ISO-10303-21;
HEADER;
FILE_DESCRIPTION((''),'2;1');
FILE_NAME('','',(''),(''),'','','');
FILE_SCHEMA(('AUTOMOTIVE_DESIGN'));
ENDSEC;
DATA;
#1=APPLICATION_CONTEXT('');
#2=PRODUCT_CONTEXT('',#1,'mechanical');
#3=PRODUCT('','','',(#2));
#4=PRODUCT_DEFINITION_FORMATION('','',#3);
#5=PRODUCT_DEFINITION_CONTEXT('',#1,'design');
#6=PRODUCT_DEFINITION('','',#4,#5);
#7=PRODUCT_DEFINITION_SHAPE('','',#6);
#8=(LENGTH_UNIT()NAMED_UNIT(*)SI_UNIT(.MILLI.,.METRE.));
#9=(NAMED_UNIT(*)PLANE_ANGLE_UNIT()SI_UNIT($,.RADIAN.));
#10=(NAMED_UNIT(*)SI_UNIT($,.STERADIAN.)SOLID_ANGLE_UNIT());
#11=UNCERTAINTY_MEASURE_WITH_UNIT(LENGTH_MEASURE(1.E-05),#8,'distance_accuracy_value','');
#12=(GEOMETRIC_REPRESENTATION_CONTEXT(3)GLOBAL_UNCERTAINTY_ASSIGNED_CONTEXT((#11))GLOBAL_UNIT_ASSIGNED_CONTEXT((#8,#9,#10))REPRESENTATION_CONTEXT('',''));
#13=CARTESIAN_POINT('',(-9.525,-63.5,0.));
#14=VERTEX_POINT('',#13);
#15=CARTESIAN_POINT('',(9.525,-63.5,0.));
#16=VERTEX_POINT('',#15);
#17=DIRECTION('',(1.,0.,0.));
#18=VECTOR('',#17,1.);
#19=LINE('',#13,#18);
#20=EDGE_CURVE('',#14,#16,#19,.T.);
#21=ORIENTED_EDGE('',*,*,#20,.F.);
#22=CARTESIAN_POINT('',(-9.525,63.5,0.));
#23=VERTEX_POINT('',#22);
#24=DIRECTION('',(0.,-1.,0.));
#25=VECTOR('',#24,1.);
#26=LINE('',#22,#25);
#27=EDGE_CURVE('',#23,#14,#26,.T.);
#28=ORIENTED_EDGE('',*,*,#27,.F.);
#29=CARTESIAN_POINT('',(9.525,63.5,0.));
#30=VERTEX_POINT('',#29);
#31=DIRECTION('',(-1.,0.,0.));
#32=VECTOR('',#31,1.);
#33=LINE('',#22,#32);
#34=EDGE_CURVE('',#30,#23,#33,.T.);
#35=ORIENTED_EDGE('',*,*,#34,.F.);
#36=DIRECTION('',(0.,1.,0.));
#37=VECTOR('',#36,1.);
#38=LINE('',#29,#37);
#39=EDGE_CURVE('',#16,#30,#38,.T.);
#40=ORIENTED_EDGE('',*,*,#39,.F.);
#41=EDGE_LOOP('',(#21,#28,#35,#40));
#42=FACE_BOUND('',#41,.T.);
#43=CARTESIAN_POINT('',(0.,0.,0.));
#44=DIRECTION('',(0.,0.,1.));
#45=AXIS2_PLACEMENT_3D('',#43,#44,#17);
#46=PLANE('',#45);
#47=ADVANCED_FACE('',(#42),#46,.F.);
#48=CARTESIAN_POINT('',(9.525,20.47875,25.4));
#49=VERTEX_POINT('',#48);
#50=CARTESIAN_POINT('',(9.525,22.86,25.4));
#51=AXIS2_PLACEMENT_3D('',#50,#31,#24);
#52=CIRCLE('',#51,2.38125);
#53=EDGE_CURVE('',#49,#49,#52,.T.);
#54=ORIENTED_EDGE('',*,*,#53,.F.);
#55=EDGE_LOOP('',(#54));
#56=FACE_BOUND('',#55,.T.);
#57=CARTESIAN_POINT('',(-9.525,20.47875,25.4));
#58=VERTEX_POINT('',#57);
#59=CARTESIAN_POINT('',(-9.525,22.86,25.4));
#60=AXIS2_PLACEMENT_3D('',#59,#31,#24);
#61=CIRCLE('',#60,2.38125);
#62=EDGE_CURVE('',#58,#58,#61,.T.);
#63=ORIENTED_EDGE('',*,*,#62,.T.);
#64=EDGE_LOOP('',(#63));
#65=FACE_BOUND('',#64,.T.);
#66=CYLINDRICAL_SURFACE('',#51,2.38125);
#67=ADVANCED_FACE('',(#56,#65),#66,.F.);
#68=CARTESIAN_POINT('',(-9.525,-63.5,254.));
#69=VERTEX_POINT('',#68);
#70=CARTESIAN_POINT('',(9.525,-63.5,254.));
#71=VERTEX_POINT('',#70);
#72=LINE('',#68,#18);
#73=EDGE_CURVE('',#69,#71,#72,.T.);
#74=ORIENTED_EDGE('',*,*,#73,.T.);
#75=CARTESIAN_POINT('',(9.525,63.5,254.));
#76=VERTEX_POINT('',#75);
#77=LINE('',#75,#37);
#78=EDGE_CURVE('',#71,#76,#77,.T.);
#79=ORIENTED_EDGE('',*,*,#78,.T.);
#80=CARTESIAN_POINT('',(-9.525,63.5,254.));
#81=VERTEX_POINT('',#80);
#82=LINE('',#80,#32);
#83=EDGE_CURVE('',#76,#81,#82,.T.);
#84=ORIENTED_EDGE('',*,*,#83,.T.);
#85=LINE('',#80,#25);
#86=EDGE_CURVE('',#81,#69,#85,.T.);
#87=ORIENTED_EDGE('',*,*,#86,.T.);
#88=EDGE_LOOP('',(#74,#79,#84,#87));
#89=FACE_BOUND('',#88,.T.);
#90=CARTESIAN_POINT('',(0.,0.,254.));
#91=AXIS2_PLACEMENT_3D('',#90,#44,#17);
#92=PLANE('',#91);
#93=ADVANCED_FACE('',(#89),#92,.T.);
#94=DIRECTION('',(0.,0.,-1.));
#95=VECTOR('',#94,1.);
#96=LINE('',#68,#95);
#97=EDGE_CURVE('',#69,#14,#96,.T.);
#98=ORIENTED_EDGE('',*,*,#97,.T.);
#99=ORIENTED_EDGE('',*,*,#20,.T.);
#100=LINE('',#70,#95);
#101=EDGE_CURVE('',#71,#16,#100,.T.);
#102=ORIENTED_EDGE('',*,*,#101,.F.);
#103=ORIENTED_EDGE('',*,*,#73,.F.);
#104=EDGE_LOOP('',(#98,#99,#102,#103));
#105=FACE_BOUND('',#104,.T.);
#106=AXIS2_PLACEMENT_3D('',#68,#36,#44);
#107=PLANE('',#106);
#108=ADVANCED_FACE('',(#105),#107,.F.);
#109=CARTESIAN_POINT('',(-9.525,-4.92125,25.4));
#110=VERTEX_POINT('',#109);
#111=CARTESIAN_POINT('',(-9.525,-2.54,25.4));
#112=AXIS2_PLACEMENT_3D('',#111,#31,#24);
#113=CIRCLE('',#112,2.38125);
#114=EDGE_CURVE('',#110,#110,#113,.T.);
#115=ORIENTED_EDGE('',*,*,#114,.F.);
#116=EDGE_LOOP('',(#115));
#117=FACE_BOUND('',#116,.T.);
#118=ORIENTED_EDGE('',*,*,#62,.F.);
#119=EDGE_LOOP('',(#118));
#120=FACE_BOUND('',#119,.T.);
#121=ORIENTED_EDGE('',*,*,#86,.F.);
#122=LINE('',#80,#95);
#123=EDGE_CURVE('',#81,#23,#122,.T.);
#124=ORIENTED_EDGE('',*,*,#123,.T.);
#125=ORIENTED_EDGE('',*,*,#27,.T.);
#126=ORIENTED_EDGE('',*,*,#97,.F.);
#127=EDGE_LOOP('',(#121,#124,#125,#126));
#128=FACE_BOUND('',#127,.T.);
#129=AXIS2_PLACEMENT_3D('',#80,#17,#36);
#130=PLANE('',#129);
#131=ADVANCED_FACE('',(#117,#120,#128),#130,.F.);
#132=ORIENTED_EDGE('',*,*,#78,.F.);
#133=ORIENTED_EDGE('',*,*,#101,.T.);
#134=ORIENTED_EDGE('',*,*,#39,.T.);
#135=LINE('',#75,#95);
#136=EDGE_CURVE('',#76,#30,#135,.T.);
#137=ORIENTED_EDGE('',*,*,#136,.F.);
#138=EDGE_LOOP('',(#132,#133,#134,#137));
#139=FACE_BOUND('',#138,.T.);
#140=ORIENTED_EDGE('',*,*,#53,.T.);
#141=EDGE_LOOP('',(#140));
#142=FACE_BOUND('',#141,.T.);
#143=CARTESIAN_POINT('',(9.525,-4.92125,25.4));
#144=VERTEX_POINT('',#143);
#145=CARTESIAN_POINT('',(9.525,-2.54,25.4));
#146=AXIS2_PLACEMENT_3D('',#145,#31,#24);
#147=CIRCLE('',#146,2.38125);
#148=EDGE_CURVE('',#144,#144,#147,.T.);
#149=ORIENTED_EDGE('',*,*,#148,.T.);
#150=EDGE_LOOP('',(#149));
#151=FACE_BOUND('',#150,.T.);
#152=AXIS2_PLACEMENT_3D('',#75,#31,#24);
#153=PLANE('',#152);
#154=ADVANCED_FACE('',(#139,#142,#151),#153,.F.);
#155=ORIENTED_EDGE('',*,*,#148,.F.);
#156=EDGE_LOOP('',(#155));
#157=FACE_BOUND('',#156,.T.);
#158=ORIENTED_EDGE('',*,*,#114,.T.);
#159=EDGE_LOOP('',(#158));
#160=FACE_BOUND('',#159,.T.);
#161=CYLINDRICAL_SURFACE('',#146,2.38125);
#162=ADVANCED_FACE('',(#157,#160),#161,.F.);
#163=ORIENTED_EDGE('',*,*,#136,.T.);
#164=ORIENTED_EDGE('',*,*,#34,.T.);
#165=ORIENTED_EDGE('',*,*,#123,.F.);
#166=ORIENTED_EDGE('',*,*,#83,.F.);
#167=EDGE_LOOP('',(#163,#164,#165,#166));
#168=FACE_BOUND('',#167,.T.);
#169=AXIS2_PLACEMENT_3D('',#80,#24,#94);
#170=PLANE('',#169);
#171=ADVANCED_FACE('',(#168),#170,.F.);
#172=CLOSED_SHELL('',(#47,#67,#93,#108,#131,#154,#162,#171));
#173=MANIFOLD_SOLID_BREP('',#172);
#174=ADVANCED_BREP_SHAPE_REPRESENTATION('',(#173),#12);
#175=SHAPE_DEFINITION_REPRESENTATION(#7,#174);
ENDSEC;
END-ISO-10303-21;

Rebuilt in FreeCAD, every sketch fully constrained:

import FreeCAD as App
import Part
import Sketcher
Q = App.Units.Quantity

doc = App.newDocument("Part")
body = doc.addObject("PartDesign::Body", "Body")

# Sketch on XY plane
sketch1 = doc.addObject("Sketcher::SketchObject", "Sketch")
body.addObject(sketch1)
sketch1.AttachmentSupport = (doc.XY_Plane, [""])
sketch1.MapMode = "FlatFace"
sketch1.addGeometry([
    Part.LineSegment(App.Vector(-10, 64, 0), App.Vector(-10, -64, 0)),
    Part.LineSegment(App.Vector(-10, -64, 0), App.Vector(10, -64, 0)),
    Part.LineSegment(App.Vector(10, -64, 0), App.Vector(10, 64, 0)),
    Part.LineSegment(App.Vector(10, 64, 0), App.Vector(-10, 64, 0)),
], False)
sketch1.addConstraint([
    Sketcher.Constraint("Coincident", 0, 2, 1, 1),
    Sketcher.Constraint("Coincident", 1, 2, 2, 1),
    Sketcher.Constraint("Coincident", 2, 2, 3, 1),
    Sketcher.Constraint("Coincident", 3, 2, 0, 1),
    Sketcher.Constraint("Vertical", 0),
    Sketcher.Constraint("Horizontal", 1),
    Sketcher.Constraint("Vertical", 2),
    Sketcher.Constraint("Horizontal", 3),
    Sketcher.Constraint("Symmetric", 0, 2, 2, 2, -1, 1),
    Sketcher.Constraint("DistanceY", 0, 2, 0, 1, Q("5 in")),
    Sketcher.Constraint("DistanceX", 1, 1, 1, 2, Q("0.75 in")),
])
pad1 = doc.addObject("PartDesign::Pad", "Pad")
body.addObject(pad1)
pad1.Profile = sketch1
pad1.Length = Q("10 in")

# Sketch on YZ plane
sketch2 = doc.addObject("Sketcher::SketchObject", "Sketch001")
body.addObject(sketch2)
sketch2.AttachmentSupport = (doc.YZ_Plane, [""])
sketch2.MapMode = "FlatFace"
sketch2.AttachmentOffset = App.Placement(App.Vector(0, 0, -0.375 * 25.4), App.Rotation())
sketch2.addGeometry([
    Part.Circle(App.Vector(22.9, 25.4, 0), App.Vector(0, 0, 1), 2.4),
    Part.Circle(App.Vector(-2.5, 25.4, 0), App.Vector(0, 0, 1), 2.4),
], False)
sketch2.addConstraint([
    Sketcher.Constraint("Equal", 0, 1),
    Sketcher.Constraint("Horizontal", 0, 3, 1, 3),
    Sketcher.Constraint("Diameter", 0, Q("0.1875 in")),
    Sketcher.Constraint("DistanceY", -1, 1, 0, 3, Q("1 in")),
    Sketcher.Constraint("DistanceX", 1, 3, 0, 3, Q("1 in")),
    Sketcher.Constraint("DistanceX", -1, 1, 0, 3, Q("0.9 in")),
])
pocket1 = doc.addObject("PartDesign::Pocket", "Pocket")
body.addObject(pocket1)
pocket1.Profile = sketch2
pocket1.Type = "ThroughAll"
pocket1.Reversed = True

doc.recompute()
